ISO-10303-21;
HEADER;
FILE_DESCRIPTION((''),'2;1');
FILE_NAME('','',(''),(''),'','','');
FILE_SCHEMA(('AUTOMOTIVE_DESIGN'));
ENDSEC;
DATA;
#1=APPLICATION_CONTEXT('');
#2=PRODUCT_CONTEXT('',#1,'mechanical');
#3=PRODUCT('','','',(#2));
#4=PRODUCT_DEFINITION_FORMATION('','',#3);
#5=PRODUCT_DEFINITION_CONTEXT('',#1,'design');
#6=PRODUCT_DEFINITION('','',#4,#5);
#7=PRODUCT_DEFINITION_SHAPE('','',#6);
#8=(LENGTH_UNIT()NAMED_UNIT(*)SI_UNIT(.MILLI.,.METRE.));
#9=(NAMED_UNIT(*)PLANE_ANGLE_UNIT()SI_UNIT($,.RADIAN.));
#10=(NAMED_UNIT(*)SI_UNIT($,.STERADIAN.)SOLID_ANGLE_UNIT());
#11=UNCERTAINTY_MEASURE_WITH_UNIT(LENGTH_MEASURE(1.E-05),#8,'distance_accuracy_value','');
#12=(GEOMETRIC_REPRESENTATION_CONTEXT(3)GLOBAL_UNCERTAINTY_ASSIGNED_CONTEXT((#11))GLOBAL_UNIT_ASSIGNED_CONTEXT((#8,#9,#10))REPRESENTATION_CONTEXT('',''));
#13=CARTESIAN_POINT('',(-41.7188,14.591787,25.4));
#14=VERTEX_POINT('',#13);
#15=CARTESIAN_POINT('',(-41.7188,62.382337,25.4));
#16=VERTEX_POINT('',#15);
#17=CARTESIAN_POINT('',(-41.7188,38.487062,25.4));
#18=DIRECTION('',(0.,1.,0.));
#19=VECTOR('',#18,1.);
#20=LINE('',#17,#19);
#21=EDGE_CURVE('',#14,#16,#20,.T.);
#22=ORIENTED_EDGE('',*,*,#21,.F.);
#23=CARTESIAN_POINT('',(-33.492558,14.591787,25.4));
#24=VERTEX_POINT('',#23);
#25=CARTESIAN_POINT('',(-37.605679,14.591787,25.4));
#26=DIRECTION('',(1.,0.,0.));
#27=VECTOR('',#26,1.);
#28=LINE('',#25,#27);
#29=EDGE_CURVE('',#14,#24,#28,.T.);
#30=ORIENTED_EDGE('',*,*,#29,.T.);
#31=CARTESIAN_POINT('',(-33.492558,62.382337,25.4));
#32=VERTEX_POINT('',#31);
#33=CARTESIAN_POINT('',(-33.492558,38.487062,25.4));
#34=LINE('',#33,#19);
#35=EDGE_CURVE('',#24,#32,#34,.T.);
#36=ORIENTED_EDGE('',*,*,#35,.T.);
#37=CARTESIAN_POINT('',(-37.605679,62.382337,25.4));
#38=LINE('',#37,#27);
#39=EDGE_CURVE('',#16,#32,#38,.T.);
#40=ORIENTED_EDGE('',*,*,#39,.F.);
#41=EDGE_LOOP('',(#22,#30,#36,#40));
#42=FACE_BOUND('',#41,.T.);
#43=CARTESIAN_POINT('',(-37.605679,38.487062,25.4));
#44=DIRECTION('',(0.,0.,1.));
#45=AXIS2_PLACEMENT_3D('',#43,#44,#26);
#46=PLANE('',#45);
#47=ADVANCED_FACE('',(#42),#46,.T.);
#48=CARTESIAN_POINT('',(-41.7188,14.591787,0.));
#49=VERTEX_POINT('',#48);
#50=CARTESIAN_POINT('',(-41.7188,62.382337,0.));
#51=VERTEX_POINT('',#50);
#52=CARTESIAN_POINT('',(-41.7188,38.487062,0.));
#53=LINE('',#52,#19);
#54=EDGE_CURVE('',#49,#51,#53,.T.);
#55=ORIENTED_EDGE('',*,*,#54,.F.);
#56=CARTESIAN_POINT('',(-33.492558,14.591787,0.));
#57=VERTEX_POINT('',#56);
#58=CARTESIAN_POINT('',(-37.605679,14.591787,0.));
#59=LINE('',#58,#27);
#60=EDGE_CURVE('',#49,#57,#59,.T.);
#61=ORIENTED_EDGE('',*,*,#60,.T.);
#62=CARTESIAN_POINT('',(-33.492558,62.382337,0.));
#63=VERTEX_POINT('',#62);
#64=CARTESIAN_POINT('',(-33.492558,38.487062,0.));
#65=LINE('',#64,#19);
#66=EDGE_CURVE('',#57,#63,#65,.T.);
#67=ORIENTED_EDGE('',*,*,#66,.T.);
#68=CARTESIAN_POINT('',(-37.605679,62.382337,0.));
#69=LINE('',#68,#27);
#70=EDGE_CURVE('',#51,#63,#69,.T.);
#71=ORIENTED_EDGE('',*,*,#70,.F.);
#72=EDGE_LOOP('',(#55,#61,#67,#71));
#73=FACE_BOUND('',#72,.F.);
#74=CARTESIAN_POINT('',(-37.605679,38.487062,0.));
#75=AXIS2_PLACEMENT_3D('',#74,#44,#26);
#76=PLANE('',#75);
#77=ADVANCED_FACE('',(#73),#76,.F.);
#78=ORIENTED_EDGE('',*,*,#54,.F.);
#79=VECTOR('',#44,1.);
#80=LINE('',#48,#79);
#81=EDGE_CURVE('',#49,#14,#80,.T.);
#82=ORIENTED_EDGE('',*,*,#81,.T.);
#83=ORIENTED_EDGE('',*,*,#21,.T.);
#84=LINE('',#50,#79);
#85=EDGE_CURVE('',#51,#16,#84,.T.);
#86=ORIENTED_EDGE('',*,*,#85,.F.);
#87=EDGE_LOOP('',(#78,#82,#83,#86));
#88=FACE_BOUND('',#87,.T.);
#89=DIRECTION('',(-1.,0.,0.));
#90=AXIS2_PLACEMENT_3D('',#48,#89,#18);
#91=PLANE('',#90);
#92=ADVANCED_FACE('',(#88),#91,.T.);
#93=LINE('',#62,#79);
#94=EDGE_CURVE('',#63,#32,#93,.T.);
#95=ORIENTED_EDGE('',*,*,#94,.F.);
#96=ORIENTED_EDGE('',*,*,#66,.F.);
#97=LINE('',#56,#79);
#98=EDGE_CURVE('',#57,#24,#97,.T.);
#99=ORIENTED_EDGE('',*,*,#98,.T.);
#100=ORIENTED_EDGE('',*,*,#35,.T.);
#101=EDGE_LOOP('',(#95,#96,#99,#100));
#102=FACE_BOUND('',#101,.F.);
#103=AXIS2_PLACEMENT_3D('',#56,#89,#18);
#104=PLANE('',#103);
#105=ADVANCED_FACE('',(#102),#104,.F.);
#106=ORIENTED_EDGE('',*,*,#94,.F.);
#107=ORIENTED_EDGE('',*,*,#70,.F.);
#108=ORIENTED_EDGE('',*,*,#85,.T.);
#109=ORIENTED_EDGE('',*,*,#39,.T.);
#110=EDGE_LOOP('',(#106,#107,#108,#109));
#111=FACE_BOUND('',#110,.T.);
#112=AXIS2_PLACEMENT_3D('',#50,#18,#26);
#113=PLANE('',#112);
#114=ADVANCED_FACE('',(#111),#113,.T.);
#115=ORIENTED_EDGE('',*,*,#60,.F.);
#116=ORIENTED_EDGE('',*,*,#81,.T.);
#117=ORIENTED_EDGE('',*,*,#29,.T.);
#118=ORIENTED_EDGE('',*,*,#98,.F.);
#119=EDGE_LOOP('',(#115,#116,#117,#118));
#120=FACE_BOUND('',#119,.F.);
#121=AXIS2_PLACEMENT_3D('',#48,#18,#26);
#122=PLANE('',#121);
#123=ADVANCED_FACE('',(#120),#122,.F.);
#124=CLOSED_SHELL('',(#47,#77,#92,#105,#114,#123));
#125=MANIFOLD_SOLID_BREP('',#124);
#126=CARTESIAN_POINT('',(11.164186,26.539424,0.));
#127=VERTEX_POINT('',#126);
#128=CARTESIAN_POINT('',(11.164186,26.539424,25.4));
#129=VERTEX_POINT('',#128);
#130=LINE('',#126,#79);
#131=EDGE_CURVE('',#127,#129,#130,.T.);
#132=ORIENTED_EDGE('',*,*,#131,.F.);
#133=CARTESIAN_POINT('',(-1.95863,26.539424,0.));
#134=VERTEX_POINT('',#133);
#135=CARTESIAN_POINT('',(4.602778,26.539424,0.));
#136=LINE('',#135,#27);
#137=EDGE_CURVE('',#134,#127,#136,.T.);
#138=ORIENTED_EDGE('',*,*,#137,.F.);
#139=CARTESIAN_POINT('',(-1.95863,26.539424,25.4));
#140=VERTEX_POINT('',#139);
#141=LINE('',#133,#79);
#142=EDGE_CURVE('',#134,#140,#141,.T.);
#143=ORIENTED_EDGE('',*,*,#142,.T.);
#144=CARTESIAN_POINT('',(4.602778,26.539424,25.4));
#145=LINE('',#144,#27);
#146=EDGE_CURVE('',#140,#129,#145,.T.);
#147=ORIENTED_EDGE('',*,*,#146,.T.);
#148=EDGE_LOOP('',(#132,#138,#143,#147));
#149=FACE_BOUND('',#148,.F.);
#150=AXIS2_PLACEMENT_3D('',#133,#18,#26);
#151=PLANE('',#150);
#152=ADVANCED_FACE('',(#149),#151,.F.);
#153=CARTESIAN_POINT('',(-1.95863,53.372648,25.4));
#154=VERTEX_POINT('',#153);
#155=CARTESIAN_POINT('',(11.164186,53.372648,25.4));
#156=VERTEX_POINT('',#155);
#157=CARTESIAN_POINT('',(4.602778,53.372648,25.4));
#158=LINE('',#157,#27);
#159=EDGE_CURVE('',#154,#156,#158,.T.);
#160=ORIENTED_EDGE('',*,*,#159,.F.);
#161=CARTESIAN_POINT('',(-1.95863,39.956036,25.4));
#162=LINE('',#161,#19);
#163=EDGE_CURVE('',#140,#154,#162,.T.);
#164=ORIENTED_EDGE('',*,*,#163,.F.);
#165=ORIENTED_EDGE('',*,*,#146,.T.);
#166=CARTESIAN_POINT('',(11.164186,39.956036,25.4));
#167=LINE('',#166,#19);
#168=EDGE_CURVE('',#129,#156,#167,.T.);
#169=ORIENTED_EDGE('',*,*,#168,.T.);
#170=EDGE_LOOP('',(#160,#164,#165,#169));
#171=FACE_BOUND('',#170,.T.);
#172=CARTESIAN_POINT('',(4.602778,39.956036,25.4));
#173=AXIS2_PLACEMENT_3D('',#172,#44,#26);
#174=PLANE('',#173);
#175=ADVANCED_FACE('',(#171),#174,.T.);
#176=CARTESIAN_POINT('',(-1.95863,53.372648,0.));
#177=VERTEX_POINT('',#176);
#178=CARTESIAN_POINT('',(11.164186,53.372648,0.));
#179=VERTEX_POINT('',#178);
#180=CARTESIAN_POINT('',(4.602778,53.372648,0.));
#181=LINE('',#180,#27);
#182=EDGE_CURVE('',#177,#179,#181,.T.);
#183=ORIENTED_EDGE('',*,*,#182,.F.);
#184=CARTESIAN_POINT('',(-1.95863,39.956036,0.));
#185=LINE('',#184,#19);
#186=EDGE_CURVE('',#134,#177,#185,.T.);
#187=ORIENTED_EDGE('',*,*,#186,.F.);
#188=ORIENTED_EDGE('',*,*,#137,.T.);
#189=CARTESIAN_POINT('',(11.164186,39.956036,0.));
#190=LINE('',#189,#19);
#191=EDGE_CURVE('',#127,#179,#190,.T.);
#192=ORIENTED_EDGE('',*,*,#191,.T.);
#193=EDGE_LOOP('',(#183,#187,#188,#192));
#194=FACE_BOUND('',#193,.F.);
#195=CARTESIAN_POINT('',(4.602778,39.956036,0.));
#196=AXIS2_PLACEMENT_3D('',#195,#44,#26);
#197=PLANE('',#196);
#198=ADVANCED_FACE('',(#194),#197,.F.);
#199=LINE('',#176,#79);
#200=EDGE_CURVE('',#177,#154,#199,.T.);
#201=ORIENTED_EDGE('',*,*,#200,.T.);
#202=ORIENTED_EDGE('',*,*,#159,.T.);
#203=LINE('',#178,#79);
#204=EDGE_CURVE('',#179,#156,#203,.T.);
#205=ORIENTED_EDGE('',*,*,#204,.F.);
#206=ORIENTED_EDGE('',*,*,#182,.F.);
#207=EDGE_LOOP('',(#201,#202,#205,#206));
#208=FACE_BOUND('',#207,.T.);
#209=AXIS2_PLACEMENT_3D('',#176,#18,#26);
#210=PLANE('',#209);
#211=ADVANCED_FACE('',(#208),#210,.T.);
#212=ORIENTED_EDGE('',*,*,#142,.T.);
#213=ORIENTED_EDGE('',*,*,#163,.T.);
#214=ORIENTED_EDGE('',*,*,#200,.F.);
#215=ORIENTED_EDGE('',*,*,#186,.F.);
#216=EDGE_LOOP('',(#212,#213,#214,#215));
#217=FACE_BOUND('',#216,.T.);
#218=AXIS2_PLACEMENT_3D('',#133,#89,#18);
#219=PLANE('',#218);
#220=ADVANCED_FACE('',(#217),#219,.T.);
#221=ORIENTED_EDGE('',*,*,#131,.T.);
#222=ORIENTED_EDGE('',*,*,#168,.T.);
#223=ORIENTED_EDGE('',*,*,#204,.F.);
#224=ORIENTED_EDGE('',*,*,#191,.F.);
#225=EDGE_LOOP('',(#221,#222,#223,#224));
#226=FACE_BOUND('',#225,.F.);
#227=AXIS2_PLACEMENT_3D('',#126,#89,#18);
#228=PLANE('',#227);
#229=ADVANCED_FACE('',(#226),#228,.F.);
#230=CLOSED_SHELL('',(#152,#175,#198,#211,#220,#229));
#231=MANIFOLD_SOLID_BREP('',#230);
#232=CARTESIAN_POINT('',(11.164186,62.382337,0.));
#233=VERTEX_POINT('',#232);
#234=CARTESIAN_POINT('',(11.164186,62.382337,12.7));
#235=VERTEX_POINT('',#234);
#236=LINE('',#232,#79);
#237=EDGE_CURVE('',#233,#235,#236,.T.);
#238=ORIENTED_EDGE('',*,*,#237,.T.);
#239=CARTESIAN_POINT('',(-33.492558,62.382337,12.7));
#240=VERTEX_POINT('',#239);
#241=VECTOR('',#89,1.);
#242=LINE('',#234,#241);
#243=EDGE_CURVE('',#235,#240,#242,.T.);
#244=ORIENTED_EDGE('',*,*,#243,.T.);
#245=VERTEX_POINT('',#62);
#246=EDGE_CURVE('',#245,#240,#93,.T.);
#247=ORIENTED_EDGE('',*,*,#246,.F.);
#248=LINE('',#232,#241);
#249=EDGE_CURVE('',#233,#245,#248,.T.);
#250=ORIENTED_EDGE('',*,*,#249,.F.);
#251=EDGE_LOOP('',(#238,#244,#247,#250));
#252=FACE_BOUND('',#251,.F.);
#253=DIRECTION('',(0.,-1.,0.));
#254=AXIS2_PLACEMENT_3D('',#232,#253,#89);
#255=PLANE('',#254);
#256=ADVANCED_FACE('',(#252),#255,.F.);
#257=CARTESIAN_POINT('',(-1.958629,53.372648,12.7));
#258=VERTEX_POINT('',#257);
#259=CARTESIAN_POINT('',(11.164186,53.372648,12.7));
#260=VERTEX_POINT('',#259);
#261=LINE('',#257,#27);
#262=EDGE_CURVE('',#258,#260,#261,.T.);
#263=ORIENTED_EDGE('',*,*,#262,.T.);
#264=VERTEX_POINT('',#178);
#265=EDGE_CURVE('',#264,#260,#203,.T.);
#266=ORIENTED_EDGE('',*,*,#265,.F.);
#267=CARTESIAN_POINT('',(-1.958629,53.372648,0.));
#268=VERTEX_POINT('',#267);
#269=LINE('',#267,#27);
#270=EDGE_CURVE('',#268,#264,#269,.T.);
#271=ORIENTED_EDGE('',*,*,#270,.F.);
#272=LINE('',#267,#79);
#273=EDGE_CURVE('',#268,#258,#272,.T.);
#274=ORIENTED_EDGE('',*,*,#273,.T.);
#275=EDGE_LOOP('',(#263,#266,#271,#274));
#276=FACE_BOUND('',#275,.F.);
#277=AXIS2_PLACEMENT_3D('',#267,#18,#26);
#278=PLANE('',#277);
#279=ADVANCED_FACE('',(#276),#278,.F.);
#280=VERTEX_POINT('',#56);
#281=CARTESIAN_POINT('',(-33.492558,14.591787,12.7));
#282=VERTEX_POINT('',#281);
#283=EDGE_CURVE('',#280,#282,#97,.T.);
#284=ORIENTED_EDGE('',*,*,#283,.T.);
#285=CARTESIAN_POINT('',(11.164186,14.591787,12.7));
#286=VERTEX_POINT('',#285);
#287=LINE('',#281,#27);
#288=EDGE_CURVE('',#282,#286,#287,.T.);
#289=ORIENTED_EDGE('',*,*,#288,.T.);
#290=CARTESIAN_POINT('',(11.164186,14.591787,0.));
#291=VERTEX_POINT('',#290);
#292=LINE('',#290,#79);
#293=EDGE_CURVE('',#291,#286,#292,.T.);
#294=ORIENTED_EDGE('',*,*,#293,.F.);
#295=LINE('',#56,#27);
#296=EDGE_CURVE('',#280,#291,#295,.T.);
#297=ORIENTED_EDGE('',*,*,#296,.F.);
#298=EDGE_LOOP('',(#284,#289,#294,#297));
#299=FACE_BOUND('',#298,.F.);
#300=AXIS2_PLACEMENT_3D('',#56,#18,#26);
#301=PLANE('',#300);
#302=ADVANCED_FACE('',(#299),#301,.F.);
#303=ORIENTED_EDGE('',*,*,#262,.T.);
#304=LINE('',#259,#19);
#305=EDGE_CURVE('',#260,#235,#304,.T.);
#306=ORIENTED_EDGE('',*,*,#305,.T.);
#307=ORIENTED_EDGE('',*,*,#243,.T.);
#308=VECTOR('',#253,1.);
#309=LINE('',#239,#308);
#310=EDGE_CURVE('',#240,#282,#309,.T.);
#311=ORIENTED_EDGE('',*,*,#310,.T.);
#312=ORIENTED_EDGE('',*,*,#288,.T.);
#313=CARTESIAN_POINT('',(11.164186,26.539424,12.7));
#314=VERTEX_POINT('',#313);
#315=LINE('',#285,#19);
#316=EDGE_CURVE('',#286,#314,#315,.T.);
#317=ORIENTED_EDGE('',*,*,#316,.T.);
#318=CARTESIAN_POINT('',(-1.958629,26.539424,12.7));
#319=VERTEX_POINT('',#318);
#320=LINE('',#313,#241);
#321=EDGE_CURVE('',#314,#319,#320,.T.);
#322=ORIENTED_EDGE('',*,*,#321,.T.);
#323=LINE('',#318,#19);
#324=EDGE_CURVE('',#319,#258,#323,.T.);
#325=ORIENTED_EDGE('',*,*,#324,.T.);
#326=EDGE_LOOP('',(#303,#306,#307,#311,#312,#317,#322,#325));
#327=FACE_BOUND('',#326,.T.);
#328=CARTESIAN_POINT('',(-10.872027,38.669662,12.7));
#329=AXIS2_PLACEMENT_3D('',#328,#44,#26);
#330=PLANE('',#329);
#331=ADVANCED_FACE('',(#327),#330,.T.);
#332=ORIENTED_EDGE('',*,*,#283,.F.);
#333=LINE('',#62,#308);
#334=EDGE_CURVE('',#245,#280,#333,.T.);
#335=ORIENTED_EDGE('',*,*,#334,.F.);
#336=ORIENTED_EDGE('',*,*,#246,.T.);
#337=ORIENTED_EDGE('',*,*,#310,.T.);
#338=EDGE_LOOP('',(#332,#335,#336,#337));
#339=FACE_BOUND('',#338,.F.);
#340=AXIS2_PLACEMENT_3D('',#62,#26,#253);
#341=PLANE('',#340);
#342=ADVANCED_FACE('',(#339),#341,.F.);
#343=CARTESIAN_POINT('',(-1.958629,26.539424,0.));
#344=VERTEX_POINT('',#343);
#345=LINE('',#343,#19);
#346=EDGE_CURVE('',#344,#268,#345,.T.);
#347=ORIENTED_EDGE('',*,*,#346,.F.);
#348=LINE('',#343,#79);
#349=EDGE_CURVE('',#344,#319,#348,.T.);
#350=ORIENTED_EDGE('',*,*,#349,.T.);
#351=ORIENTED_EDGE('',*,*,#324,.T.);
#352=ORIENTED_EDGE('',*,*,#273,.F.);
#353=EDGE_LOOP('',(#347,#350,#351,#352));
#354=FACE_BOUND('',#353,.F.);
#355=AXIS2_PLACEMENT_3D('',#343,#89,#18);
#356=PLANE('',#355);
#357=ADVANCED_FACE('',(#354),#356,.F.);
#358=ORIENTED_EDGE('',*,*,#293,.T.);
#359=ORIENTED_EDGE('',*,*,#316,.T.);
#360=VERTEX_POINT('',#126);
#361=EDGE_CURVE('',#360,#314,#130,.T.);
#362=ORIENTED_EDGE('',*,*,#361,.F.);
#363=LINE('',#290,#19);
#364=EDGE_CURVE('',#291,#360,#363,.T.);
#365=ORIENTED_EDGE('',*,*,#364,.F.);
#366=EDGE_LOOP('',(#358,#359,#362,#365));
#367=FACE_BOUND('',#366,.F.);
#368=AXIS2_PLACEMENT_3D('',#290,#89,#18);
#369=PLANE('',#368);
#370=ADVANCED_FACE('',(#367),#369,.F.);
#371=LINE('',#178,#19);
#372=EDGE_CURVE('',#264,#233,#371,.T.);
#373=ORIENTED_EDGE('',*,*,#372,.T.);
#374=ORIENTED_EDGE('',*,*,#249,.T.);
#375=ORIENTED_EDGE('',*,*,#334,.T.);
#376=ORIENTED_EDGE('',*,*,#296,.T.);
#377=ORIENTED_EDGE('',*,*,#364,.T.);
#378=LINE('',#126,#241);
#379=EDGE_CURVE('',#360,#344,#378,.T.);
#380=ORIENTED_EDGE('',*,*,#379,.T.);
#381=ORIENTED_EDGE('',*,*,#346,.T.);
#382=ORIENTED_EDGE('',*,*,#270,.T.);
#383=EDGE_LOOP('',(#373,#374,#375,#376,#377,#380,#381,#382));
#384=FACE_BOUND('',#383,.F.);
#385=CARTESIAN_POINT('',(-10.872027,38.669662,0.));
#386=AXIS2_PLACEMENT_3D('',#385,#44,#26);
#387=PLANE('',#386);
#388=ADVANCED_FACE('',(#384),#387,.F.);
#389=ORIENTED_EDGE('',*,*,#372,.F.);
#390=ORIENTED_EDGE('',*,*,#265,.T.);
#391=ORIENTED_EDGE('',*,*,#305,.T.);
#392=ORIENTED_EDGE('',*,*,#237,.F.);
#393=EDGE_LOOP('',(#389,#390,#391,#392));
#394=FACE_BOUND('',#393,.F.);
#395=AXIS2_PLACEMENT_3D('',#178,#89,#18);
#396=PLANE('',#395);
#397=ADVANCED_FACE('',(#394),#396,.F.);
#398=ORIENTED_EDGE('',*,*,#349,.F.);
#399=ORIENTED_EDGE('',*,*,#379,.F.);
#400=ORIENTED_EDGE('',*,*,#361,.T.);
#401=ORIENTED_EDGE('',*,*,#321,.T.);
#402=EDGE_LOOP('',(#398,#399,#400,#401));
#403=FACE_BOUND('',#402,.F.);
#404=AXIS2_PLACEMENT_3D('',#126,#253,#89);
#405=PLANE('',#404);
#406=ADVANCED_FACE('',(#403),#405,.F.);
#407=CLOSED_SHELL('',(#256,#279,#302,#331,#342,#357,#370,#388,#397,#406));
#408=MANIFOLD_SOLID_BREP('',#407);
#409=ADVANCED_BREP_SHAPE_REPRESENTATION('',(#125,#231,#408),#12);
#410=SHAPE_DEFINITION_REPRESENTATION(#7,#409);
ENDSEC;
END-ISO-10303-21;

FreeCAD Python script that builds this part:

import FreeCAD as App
import Part
import Sketcher
from FreeCAD import Vector
Q = App.Units.Quantity


def add_polygon(sketch, points):
    """Adds a closed chain of lines whose ends are joined by coincident constraints."""
    first, n = sketch.GeometryCount, len(points)
    for a, b in zip(points, points[1:] + points[:1]):
        sketch.addGeometry(Part.LineSegment(App.Vector(*a, 0), App.Vector(*b, 0)), False)
    for i in range(n):
        sketch.addConstraint(Sketcher.Constraint("Coincident", first + i, 2, first + (i + 1) % n, 1))

doc = App.newDocument("Part")
body = doc.addObject("PartDesign::Body", "Body")
body.AllowCompound = True

# Sketch on XY plane
sketch1 = body.newObject("Sketcher::SketchObject", "Sketch")
sketch1.AttachmentSupport = (doc.getObject("XY_Plane"), [""])
sketch1.MapMode = "FlatFace"
add_polygon(sketch1, [(-42, 62), (-42, 15), (-33, 15), (-33, 62)])  # lines 0-3
add_polygon(sketch1, [(-2, 53), (-2, 27), (11, 27), (11, 53)])  # lines 4-7
sketch1.addConstraint(Sketcher.Constraint("Vertical", 0))
sketch1.addConstraint(Sketcher.Constraint("Horizontal", 1))
sketch1.addConstraint(Sketcher.Constraint("Vertical", 2))
sketch1.addConstraint(Sketcher.Constraint("Horizontal", 3))
sketch1.addConstraint(Sketcher.Constraint("Vertical", 4))
sketch1.addConstraint(Sketcher.Constraint("Horizontal", 5))
sketch1.addConstraint(Sketcher.Constraint("Vertical", 6))
sketch1.addConstraint(Sketcher.Constraint("Horizontal", 7))
sketch1.addConstraint(Sketcher.Constraint("DistanceX", 1, 1, 1, 2, 8.226242))
sketch1.addConstraint(Sketcher.Constraint("DistanceY", 0, 2, 0, 1, 47.79055))
sketch1.addConstraint(Sketcher.Constraint("DistanceX", 0, 2, -1, 1, 41.7188))
sketch1.addConstraint(Sketcher.Constraint("DistanceX", 5, 1, 5, 2, 13.122815))
sketch1.addConstraint(Sketcher.Constraint("DistanceY", 4, 2, 4, 1, 26.833224))
sketch1.addConstraint(Sketcher.Constraint("DistanceX", 4, 2, -1, 1, 1.95863))
sketch1.addConstraint(Sketcher.Constraint("DistanceY", 6, 2, 2, 2, 9.009689))
sketch1.addConstraint(Sketcher.Constraint("DistanceY", -1, 1, 0, 2, 14.591787))
pad1 = body.newObject("PartDesign::Pad", "Pad")
pad1.Profile = sketch1
pad1.Length = Q("1 in")
body2 = doc.addObject("PartDesign::Body", "Body001")

# Sketch on XY plane
sketch2 = body2.newObject("Sketcher::SketchObject", "Sketch001")
sketch2.AttachmentSupport = (doc.getObject("XY_Plane001"), [""])
sketch2.MapMode = "FlatFace"
add_polygon(sketch2, [(11, 62), (-33, 62), (-33, 15), (11, 15), (11, 27), (-2, 27), (-2, 53), (11, 53)])  # lines 0-7
sketch2.addConstraint(Sketcher.Constraint("Horizontal", 0))
sketch2.addConstraint(Sketcher.Constraint("Vertical", 1))
sketch2.addConstraint(Sketcher.Constraint("Horizontal", 2))
sketch2.addConstraint(Sketcher.Constraint("Vertical", 3))
sketch2.addConstraint(Sketcher.Constraint("Horizontal", 4))
sketch2.addConstraint(Sketcher.Constraint("Vertical", 5))
sketch2.addConstraint(Sketcher.Constraint("Horizontal", 6))
sketch2.addConstraint(Sketcher.Constraint("Vertical", 7))
sketch2.addConstraint(Sketcher.Constraint("Vertical", 3, 2, 6, 2))
sketch2.addConstraint(Sketcher.Constraint("DistanceY", 1, 2, 1, 1, 47.79055))
sketch2.addConstraint(Sketcher.Constraint("DistanceY", 7, 1, 7, 2, 9.009689))
sketch2.addConstraint(Sketcher.Constraint("DistanceX", 0, 2, 0, 1, 44.656744))
sketch2.addConstraint(Sketcher.Constraint("DistanceX", 4, 2, 4, 1, 13.122815))
sketch2.addConstraint(Sketcher.Constraint("DistanceY", 3, 1, 3, 2, 11.947637))
sketch2.addConstraint(Sketcher.Constraint("DistanceX", 0, 2, -1, 1, 33.492558))
sketch2.addConstraint(Sketcher.Constraint("DistanceY", -1, 1, 0, 2, 62.382337))
pad2 = body2.newObject("PartDesign::Pad", "Pad001")
pad2.Profile = sketch2
pad2.Length = Q("0.5 in")

doc.recompute()
